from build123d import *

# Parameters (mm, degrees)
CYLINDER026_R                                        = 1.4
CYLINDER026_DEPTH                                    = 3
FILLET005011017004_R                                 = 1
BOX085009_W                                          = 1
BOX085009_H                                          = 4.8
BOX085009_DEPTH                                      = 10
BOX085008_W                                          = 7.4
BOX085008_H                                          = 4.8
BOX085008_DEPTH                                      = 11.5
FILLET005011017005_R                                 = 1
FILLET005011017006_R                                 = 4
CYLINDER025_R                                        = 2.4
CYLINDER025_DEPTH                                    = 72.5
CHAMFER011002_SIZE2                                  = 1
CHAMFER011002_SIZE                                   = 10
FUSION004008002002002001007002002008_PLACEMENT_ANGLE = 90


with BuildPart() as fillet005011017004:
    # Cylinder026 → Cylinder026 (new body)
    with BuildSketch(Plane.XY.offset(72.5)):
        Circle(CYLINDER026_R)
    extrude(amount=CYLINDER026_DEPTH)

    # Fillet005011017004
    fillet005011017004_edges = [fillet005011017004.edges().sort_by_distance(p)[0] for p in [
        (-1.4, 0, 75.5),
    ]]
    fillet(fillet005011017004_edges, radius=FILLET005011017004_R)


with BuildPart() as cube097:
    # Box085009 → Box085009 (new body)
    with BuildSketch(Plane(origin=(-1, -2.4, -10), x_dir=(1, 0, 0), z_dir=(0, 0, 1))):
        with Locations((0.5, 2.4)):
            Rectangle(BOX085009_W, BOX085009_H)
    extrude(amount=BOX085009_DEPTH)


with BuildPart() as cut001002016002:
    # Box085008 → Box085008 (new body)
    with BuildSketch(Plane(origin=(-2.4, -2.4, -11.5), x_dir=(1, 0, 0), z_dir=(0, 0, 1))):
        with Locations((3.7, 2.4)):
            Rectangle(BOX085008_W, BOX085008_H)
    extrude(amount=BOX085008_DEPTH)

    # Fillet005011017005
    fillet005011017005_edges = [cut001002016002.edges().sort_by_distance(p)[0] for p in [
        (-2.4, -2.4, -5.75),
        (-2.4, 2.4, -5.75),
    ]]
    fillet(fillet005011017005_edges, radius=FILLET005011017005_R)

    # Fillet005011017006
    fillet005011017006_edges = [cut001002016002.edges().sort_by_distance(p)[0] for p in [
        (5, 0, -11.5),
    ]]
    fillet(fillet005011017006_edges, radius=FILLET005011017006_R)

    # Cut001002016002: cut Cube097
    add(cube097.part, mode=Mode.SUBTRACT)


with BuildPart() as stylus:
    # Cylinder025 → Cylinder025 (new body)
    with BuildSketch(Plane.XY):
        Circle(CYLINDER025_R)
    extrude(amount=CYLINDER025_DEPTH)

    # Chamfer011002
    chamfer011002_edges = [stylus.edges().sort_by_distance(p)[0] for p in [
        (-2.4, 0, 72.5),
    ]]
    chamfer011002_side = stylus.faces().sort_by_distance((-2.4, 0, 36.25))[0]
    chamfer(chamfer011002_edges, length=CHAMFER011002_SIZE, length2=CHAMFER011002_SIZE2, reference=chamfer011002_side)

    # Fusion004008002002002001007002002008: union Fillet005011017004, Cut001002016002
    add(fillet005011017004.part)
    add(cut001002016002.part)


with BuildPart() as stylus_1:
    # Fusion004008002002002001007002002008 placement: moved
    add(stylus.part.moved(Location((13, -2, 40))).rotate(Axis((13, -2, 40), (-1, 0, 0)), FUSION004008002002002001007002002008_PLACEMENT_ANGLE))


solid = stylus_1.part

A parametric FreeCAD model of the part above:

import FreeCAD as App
import Part
import Sketcher

V = App.Vector
Q = App.Units.Quantity


def edges_at(feature, points):
    """Names of the edges that pass closest to the given points."""
    edges = feature.Shape.Edges
    near = lambda p: min(range(len(edges)), key=lambda i: edges[i].distToShape(Part.Vertex(*p))[0])
    return sorted({f"Edge{near(p) + 1}" for p in points})

doc = App.newDocument("Part")
body = doc.addObject("PartDesign::Body", "Body")

# Sketch on XY plane
sketch1 = body.newObject("Sketcher::SketchObject", "Sketch")
sketch1.AttachmentSupport = (doc.getObject("XY_Plane"), [""])
sketch1.MapMode = "FlatFace"
sketch1.AttachmentOffset = App.Placement(V(0, 0, 72.5), App.Rotation())
sketch1.addGeometry(Part.Circle(V(0, 0, 0), V(0, 0, 1), 1.4), False)
sketch1.addConstraint([
    Sketcher.Constraint("Coincident", 0, 3, -1, 1),
    Sketcher.Constraint("Diameter", 0, Q("2.8 mm")),
])
pad1 = body.newObject("PartDesign::Pad", "Pad")
pad1.Profile = sketch1
pad1.Length = 3
doc.recompute()

fillet = body.newObject("PartDesign::Fillet", "Fillet")
fillet.Base = (pad1, edges_at(pad1, [(-1.4, 0, 75.5)]))
fillet.Radius = 1
body2 = doc.addObject("PartDesign::Body", "Body001")

# Sketch on XY plane
sketch2 = body2.newObject("Sketcher::SketchObject", "Sketch001")
sketch2.AttachmentSupport = (doc.getObject("XY_Plane001"), [""])
sketch2.MapMode = "FlatFace"
sketch2.AttachmentOffset = App.Placement(V(0, 0, -10), App.Rotation())
sketch2.addGeometry([
    Part.LineSegment(V(-1, 2.4, 0), V(-1, -2.4, 0)),
    Part.LineSegment(V(-1, -2.4, 0), V(0, -2.4, 0)),
    Part.LineSegment(V(0, -2.4, 0), V(0, 2.4, 0)),
    Part.LineSegment(V(0, 2.4, 0), V(-1, 2.4, 0)),
], False)
sketch2.addConstraint([
    Sketcher.Constraint("Coincident", 0, 2, 1, 1),
    Sketcher.Constraint("Coincident", 1, 2, 2, 1),
    Sketcher.Constraint("Coincident", 2, 2, 3, 1),
    Sketcher.Constraint("Coincident", 3, 2, 0, 1),
    Sketcher.Constraint("Vertical", 0),
    Sketcher.Constraint("Horizontal", 1),
    Sketcher.Constraint("Vertical", 2),
    Sketcher.Constraint("Horizontal", 3),
    Sketcher.Constraint("Symmetric", 1, 2, 2, 2, -1, 1),
    Sketcher.Constraint("DistanceX", 1, 1, 1, 2, Q("1 mm")),
    Sketcher.Constraint("DistanceY", 0, 2, 0, 1, Q("4.8 mm")),
])
pad2 = body2.newObject("PartDesign::Pad", "Pad001")
pad2.Profile = sketch2
pad2.Length = 10
body3 = doc.addObject("PartDesign::Body", "Body002")

# Sketch on XY plane
sketch3 = body3.newObject("Sketcher::SketchObject", "Sketch002")
sketch3.AttachmentSupport = (doc.getObject("XY_Plane002"), [""])
sketch3.MapMode = "FlatFace"
sketch3.AttachmentOffset = App.Placement(V(0, 0, -11.5), App.Rotation())
sketch3.addGeometry([
    Part.LineSegment(V(-2.4, 2.4, 0), V(-2.4, -2.4, 0)),
    Part.LineSegment(V(-2.4, -2.4, 0), V(5, -2.4, 0)),
    Part.LineSegment(V(5, -2.4, 0), V(5, 2.4, 0)),
    Part.LineSegment(V(5, 2.4, 0), V(-2.4, 2.4, 0)),
], False)
sketch3.addConstraint([
    Sketcher.Constraint("Coincident", 0, 2, 1, 1),
    Sketcher.Constraint("Coincident", 1, 2, 2, 1),
    Sketcher.Constraint("Coincident", 2, 2, 3, 1),
    Sketcher.Constraint("Coincident", 3, 2, 0, 1),
    Sketcher.Constraint("Vertical", 0),
    Sketcher.Constraint("Horizontal", 1),
    Sketcher.Constraint("Vertical", 2),
    Sketcher.Constraint("Horizontal", 3),
    Sketcher.Constraint("DistanceX", 1, 1, 1, 2, Q("7.4 mm")),
    Sketcher.Constraint("DistanceY", 0, 2, 0, 1, Q("4.8 mm")),
    Sketcher.Constraint("DistanceX", -1, 1, 1, 2, Q("5 mm")),
    Sketcher.Constraint("DistanceY", 0, 2, -1, 1, Q("2.4 mm")),
])
pad3 = body3.newObject("PartDesign::Pad", "Pad002")
pad3.Profile = sketch3
pad3.Length = 11.5
doc.recompute()

fillet2 = body3.newObject("PartDesign::Fillet", "Fillet001")
fillet2.Base = (pad3, edges_at(pad3, [(-2.4, -2.4, -5.75), (-2.4, 2.4, -5.75)]))
fillet2.Radius = 1
doc.recompute()

fillet3 = body3.newObject("PartDesign::Fillet", "Fillet002")
fillet3.Base = (fillet2, edges_at(fillet2, [(5, 0, -11.5)]))
fillet3.Radius = 4
doc.recompute()

boolean = body3.newObject("PartDesign::Boolean", "Boolean")
boolean.Type = "Cut"
boolean.addObjects([body2])
body4 = doc.addObject("PartDesign::Body", "Body003")

# Sketch on XY plane
sketch4 = body4.newObject("Sketcher::SketchObject", "Sketch003")
sketch4.AttachmentSupport = (doc.getObject("XY_Plane003"), [""])
sketch4.MapMode = "FlatFace"
sketch4.addGeometry(Part.Circle(V(0, 0, 0), V(0, 0, 1), 2.4), False)
sketch4.addConstraint([
    Sketcher.Constraint("Coincident", 0, 3, -1, 1),
    Sketcher.Constraint("Diameter", 0, Q("4.8 mm")),
])
pad4 = body4.newObject("PartDesign::Pad", "Pad003")
pad4.Profile = sketch4
pad4.Length = 72.5
doc.recompute()

chamfer = body4.newObject("PartDesign::Chamfer", "Chamfer")
chamfer.Base = (pad4, edges_at(pad4, [(-2.4, 0, 72.5)]))
chamfer.ChamferType = "Two distances"
chamfer.Size = 10
chamfer.Size2 = 1
doc.recompute()

boolean2 = body4.newObject("PartDesign::Boolean", "Boolean001")
boolean2.Type = "Fuse"
boolean2.addObjects([body])
doc.recompute()

boolean3 = body4.newObject("PartDesign::Boolean", "Boolean002")
boolean3.Type = "Fuse"
boolean3.addObjects([body3])
body5 = doc.addObject("PartDesign::Body", "Body004")
doc.recompute()

body4.Placement = App.Placement(V(13, -2, 40), App.Rotation(V(-1, 0, 0), 90))
boolean4 = body5.newObject("PartDesign::Boolean", "Boolean003")
boolean4.Type = "Fuse"
boolean4.addObjects([body4])

doc.recompute()
